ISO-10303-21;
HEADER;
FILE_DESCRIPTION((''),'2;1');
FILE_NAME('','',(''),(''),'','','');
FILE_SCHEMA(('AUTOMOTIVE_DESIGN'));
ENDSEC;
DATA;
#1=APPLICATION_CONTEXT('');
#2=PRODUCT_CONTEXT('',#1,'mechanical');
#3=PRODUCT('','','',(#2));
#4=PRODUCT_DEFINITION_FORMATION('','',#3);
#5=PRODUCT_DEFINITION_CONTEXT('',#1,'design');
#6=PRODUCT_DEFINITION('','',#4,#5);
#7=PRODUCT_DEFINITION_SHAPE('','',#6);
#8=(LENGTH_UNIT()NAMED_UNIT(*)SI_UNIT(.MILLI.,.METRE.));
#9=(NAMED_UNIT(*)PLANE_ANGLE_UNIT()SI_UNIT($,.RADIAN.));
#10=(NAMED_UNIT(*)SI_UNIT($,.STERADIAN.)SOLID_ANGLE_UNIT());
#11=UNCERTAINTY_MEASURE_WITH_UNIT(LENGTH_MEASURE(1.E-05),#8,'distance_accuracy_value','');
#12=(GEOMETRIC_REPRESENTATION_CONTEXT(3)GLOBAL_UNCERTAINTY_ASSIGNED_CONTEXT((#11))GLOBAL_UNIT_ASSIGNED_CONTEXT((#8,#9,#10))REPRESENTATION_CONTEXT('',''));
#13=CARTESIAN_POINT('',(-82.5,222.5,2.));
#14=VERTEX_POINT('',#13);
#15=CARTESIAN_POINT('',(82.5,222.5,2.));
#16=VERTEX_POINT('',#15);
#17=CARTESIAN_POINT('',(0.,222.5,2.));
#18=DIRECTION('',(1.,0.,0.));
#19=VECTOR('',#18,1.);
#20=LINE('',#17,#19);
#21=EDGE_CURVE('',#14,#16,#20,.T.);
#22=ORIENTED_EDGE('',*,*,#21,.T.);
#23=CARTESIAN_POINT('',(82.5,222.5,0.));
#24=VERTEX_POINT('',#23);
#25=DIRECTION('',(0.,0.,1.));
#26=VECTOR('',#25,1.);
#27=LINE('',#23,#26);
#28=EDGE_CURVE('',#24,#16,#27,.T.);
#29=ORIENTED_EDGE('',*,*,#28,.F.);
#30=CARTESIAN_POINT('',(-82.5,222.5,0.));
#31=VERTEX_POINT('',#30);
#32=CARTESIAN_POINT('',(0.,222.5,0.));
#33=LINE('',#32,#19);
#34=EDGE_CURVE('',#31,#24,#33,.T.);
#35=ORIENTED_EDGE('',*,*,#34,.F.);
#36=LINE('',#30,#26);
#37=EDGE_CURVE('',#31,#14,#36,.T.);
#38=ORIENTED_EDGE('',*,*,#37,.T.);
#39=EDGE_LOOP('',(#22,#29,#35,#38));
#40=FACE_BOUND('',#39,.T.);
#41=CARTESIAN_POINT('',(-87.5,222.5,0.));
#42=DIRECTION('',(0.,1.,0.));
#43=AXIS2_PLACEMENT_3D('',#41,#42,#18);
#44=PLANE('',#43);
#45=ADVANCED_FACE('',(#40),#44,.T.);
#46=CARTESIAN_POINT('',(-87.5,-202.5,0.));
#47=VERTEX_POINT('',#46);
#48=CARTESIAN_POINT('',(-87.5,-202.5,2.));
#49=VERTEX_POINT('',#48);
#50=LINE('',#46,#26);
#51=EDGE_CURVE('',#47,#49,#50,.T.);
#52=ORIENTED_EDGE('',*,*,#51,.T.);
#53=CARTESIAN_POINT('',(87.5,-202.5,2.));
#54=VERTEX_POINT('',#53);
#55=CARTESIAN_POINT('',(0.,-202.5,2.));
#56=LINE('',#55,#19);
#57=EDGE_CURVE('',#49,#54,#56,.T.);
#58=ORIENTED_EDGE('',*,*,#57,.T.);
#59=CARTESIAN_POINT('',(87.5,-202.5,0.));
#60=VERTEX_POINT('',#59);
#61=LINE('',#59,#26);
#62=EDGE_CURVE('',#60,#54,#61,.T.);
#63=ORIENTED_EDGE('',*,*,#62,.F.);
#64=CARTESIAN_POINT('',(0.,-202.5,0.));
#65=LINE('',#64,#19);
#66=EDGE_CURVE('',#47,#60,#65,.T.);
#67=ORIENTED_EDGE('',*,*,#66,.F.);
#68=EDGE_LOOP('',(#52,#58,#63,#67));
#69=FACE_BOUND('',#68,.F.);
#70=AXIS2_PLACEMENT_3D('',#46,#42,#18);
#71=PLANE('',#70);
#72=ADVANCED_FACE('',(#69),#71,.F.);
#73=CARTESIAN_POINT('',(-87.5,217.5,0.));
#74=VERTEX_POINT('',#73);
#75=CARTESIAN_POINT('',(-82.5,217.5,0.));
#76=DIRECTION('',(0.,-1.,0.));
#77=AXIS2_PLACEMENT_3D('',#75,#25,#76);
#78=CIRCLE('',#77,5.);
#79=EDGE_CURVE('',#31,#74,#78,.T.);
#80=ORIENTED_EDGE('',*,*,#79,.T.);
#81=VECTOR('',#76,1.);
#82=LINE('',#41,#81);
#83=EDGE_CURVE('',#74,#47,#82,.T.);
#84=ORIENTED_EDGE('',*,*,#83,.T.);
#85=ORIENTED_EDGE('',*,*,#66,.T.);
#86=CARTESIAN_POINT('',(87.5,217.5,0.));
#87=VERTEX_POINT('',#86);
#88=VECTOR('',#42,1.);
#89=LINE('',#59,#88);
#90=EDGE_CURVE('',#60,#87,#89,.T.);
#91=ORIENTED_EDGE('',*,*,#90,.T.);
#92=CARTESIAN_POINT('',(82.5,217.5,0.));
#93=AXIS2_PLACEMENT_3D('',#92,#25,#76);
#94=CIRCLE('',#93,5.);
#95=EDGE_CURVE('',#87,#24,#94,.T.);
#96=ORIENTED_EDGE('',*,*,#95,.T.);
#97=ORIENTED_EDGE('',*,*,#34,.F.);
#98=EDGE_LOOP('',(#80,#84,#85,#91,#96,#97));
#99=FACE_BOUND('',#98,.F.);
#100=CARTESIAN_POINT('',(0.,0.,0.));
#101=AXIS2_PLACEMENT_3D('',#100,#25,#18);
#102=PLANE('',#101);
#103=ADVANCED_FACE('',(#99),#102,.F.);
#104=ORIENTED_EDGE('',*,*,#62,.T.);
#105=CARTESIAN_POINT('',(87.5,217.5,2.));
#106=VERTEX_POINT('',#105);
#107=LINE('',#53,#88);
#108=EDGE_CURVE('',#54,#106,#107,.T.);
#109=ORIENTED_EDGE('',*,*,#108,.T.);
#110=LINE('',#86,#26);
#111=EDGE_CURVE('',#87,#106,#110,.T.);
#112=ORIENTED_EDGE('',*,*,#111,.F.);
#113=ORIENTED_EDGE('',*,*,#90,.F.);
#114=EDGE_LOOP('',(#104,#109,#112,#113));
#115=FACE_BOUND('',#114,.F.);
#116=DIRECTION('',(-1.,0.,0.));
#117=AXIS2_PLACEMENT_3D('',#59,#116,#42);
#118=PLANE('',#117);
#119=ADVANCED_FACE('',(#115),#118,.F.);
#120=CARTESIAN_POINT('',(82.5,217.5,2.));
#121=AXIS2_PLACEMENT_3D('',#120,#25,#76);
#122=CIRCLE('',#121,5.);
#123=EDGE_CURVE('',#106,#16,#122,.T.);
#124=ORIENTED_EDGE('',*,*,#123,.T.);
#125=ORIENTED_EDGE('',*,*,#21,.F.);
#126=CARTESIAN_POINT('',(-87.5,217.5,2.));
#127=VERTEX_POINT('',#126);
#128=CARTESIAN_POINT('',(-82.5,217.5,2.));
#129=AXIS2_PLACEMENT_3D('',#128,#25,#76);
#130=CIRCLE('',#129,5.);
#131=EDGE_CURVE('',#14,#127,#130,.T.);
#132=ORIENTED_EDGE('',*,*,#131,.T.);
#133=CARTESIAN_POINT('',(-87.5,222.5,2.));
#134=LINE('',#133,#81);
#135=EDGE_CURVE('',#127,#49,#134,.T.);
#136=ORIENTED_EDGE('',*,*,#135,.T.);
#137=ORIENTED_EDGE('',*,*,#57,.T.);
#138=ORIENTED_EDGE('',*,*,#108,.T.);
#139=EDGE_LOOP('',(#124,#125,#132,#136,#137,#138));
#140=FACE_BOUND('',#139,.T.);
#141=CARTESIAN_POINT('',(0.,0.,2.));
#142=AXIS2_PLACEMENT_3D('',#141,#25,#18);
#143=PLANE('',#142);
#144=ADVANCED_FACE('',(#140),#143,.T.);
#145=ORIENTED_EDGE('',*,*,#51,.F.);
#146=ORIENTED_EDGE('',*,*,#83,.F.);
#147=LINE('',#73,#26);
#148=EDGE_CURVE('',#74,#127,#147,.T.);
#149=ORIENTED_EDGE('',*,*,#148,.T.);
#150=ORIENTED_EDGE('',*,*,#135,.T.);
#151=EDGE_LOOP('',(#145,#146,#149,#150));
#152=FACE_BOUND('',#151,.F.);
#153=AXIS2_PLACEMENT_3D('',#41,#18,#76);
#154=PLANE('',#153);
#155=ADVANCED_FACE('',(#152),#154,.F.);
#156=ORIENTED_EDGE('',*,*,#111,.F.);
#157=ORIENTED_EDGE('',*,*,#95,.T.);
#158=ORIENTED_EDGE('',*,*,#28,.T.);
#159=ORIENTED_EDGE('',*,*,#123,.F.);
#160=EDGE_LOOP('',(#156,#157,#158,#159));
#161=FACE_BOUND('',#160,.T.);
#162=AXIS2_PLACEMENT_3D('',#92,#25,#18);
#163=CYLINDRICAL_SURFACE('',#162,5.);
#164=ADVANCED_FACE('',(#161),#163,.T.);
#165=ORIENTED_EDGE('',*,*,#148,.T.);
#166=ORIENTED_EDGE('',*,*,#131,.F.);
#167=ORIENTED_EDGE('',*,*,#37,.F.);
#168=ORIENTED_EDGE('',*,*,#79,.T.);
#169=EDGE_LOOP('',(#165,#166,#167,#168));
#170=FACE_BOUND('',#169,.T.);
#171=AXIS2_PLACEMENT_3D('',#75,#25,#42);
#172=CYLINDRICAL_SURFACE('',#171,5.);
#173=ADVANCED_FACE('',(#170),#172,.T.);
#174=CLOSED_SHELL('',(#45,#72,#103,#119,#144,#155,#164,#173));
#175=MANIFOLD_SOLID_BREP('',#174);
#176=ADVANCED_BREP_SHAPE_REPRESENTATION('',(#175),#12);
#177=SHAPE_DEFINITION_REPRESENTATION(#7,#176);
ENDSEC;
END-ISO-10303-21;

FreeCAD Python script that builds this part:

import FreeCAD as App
import Part
import Sketcher
from FreeCAD import Vector
Q = App.Units.Quantity


def edges_at(feature, points):
    """Names of the edges that pass closest to the given points."""
    edges = feature.Shape.Edges
    near = lambda p: min(range(len(edges)), key=lambda i: edges[i].distToShape(Part.Vertex(*p))[0])
    return sorted({f"Edge{near(p) + 1}" for p in points})

doc = App.newDocument("Part")
body = doc.addObject("PartDesign::Body", "Body")

# Sketch on XY plane
sketch1 = body.newObject("Sketcher::SketchObject", "Sketch")
sketch1.AttachmentSupport = (doc.getObject("XY_Plane"), [""])
sketch1.MapMode = "FlatFace"
sketch1.addGeometry([
    Part.LineSegment(Vector(-88, -202, 0), Vector(88, -202, 0)),
    Part.LineSegment(Vector(88, -202, 0), Vector(88, 222, 0)),
    Part.LineSegment(Vector(88, 222, 0), Vector(-88, 222, 0)),
    Part.LineSegment(Vector(-88, 222, 0), Vector(-88, -202, 0)),
], False)
sketch1.addConstraint([
    Sketcher.Constraint("Coincident", 0, 2, 1, 1),
    Sketcher.Constraint("Coincident", 1, 2, 2, 1),
    Sketcher.Constraint("Coincident", 2, 2, 3, 1),
    Sketcher.Constraint("Coincident", 3, 2, 0, 1),
    Sketcher.Constraint("Horizontal", 0),
    Sketcher.Constraint("Vertical", 1),
    Sketcher.Constraint("Horizontal", 2),
    Sketcher.Constraint("Vertical", 3),
    Sketcher.Constraint("DistanceX", 0, 1, 0, 2, Q("175 mm")),
    Sketcher.Constraint("DistanceY", 1, 1, 1, 2, Q("425 mm")),
    Sketcher.Constraint("DistanceX", -1, 1, 0, 2, Q("87.5 mm")),
    Sketcher.Constraint("DistanceY", 0, 2, -1, 1, Q("202.5 mm")),
])
pad1 = body.newObject("PartDesign::Pad", "Pad")
pad1.Profile = sketch1
pad1.Length = 2
doc.recompute()

fillet = body.newObject("PartDesign::Fillet", "Fillet")
fillet.Base = (pad1, edges_at(pad1, [(87.5, 222.5, 1), (-87.5, 222.5, 1)]))
fillet.Radius = 5

doc.recompute()
